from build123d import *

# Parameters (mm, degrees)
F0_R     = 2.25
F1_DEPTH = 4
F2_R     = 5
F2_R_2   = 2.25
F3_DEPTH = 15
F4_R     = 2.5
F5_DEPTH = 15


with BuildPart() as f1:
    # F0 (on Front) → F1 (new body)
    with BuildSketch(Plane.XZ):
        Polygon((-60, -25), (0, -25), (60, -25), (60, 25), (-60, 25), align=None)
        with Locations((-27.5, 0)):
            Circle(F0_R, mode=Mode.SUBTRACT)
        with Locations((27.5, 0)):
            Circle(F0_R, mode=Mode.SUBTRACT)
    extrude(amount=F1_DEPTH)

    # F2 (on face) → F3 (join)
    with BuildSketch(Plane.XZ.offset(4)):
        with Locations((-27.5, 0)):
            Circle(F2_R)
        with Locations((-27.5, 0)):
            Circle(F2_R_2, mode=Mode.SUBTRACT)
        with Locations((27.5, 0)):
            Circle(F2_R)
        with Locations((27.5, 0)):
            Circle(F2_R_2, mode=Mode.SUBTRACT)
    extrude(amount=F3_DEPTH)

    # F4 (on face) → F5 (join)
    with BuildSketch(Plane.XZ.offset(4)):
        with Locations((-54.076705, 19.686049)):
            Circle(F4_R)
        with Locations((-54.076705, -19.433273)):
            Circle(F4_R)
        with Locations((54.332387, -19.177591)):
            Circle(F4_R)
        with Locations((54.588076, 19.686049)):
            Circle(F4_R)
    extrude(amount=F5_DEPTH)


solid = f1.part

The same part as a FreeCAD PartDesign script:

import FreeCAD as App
import Part
import Sketcher
Q = App.Units.Quantity

doc = App.newDocument("Part")
body = doc.addObject("PartDesign::Body", "Body")

sketch1 = doc.addObject("Sketcher::SketchObject", "Sketch")
body.addObject(sketch1)
sketch1.AttachmentSupport = (doc.XZ_Plane, [""])
sketch1.MapMode = "FlatFace"
sketch1.addGeometry(Part.LineSegment(App.Vector(-60, -25, 0), App.Vector(60, -25, 0)), False)
sketch1.addGeometry(Part.LineSegment(App.Vector(60, -25, 0), App.Vector(60, 25, 0)), False)
sketch1.addGeometry(Part.LineSegment(App.Vector(60, 25, 0), App.Vector(-60, 25, 0)), False)
sketch1.addGeometry(Part.LineSegment(App.Vector(-60, 25, 0), App.Vector(-60, -25, 0)), False)
sketch1.addGeometry(Part.Circle(App.Vector(-27.5, 0, 0), App.Vector(0, 0, 1), 2.25), False)
sketch1.addGeometry(Part.Circle(App.Vector(27.5, 0, 0), App.Vector(0, 0, 1), 2.25), False)
sketch1.addConstraint(Sketcher.Constraint("Coincident", 0, 2, 1, 1))
sketch1.addConstraint(Sketcher.Constraint("Coincident", 1, 2, 2, 1))
sketch1.addConstraint(Sketcher.Constraint("Coincident", 2, 2, 3, 1))
sketch1.addConstraint(Sketcher.Constraint("Coincident", 3, 2, 0, 1))
sketch1.addConstraint(Sketcher.Constraint("Horizontal", 0))
sketch1.addConstraint(Sketcher.Constraint("Vertical", 1))
sketch1.addConstraint(Sketcher.Constraint("Horizontal", 2))
sketch1.addConstraint(Sketcher.Constraint("Vertical", 3))
sketch1.addConstraint(Sketcher.Constraint("Equal", 4, 5))
sketch1.addConstraint(Sketcher.Constraint("Symmetric", 4, 3, 5, 3, -1, 1))
sketch1.addConstraint(Sketcher.Constraint("Symmetric", 0, 2, 2, 2, -1, 1))
sketch1.addConstraint(Sketcher.Constraint("PointOnObject", 4, 3, -1))
sketch1.addConstraint(Sketcher.Constraint("Diameter", 4, Q("4.5 mm")))
sketch1.addConstraint(Sketcher.Constraint("DistanceX", 0, 1, 0, 2, Q("120 mm")))
sketch1.addConstraint(Sketcher.Constraint("DistanceY", 1, 1, 1, 2, Q("50 mm")))
sketch1.addConstraint(Sketcher.Constraint("DistanceX", 4, 3, 5, 3, Q("55 mm")))
pad1 = doc.addObject("PartDesign::Pad", "Pad")
body.addObject(pad1)
pad1.Profile = sketch1
pad1.Length = 4

sketch2 = doc.addObject("Sketcher::SketchObject", "Sketch001")
body.addObject(sketch2)
sketch2.AttachmentSupport = (doc.XZ_Plane, [""])
sketch2.MapMode = "FlatFace"
sketch2.AttachmentOffset = App.Placement(App.Vector(0, 0, 4), App.Rotation())
sketch2.addGeometry(Part.Circle(App.Vector(-27.5, 0, 0), App.Vector(0, 0, 1), 5), False)
sketch2.addGeometry(Part.Circle(App.Vector(-27.5, 0, 0), App.Vector(0, 0, 1), 2.25), False)
sketch2.addGeometry(Part.Circle(App.Vector(27.5, 0, 0), App.Vector(0, 0, 1), 5), False)
sketch2.addGeometry(Part.Circle(App.Vector(27.5, 0, 0), App.Vector(0, 0, 1), 2.25), False)
sketch2.addConstraint(Sketcher.Constraint("Coincident", 1, 3, 0, 3))
sketch2.addConstraint(Sketcher.Constraint("Coincident", 3, 3, 2, 3))
sketch2.addConstraint(Sketcher.Constraint("Equal", 0, 2))
sketch2.addConstraint(Sketcher.Constraint("Equal", 1, 3))
sketch2.addConstraint(Sketcher.Constraint("Symmetric", 0, 3, 2, 3, -1, 1))
sketch2.addConstraint(Sketcher.Constraint("PointOnObject", 0, 3, -1))
sketch2.addConstraint(Sketcher.Constraint("Diameter", 0, Q("10 mm")))
sketch2.addConstraint(Sketcher.Constraint("Diameter", 1, Q("4.5 mm")))
sketch2.addConstraint(Sketcher.Constraint("DistanceX", 0, 3, 2, 3, Q("55 mm")))
pad2 = doc.addObject("PartDesign::Pad", "Pad001")
body.addObject(pad2)
pad2.Profile = sketch2
pad2.Length = 15

sketch3 = doc.addObject("Sketcher::SketchObject", "Sketch002")
body.addObject(sketch3)
sketch3.AttachmentSupport = (doc.XZ_Plane, [""])
sketch3.MapMode = "FlatFace"
sketch3.AttachmentOffset = App.Placement(App.Vector(0, 0, 4), App.Rotation())
sketch3.addGeometry(Part.Circle(App.Vector(-54.076705, 19.686049, 0), App.Vector(0, 0, 1), 2.5), False)
sketch3.addGeometry(Part.Circle(App.Vector(-54.076705, -19.433273, 0), App.Vector(0, 0, 1), 2.5), False)
sketch3.addGeometry(Part.Circle(App.Vector(54.332387, -19.177591, 0), App.Vector(0, 0, 1), 2.5), False)
sketch3.addGeometry(Part.Circle(App.Vector(54.588076, 19.686049, 0), App.Vector(0, 0, 1), 2.5), False)
sketch3.addConstraint(Sketcher.Constraint("Equal", 0, 1))
sketch3.addConstraint(Sketcher.Constraint("Equal", 1, 2))
sketch3.addConstraint(Sketcher.Constraint("Equal", 2, 3))
sketch3.addConstraint(Sketcher.Constraint("Horizontal", 0, 3, 3, 3))
sketch3.addConstraint(Sketcher.Constraint("Vertical", 0, 3, 1, 3))
sketch3.addConstraint(Sketcher.Constraint("Diameter", 0, Q("5 mm")))
sketch3.addConstraint(Sketcher.Constraint("DistanceY", -1, 1, 0, 3, Q("19.686049 mm")))
sketch3.addConstraint(Sketcher.Constraint("DistanceY", 2, 3, -1, 1, Q("19.177591 mm")))
sketch3.addConstraint(Sketcher.Constraint("DistanceY", 1, 3, 0, 3, Q("39.119322 mm")))
sketch3.addConstraint(Sketcher.Constraint("DistanceX", 1, 3, 2, 3, Q("108.409092 mm")))
sketch3.addConstraint(Sketcher.Constraint("DistanceX", 2, 3, 3, 3, Q("0.255689 mm")))
sketch3.addConstraint(Sketcher.Constraint("DistanceX", 0, 3, -1, 1, Q("54.076705 mm")))
pad3 = doc.addObject("PartDesign::Pad", "Pad002")
body.addObject(pad3)
pad3.Profile = sketch3
pad3.Length = 15

doc.recompute()
